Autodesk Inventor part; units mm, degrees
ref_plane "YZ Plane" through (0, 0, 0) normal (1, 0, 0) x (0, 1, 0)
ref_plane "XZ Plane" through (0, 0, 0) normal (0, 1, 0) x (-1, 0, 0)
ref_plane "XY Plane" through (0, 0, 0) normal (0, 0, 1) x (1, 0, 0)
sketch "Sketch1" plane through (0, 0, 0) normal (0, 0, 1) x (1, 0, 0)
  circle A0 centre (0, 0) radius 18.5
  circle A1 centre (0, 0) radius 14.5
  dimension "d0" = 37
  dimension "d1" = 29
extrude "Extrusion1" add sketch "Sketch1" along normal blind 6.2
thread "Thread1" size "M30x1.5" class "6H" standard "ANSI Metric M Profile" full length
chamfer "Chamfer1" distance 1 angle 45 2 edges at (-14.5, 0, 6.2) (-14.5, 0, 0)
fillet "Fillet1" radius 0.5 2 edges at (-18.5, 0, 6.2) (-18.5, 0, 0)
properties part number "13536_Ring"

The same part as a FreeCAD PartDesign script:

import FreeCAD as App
import Part
import Sketcher
from FreeCAD import Vector


def edges_at(feature, points):
    """Names of the edges that pass closest to the given points."""
    edges = feature.Shape.Edges
    near = lambda p: min(range(len(edges)), key=lambda i: edges[i].distToShape(Part.Vertex(*p))[0])
    return sorted({f"Edge{near(p) + 1}" for p in points})

doc = App.newDocument("Part")
body = doc.addObject("PartDesign::Body", "Body")

sketch1 = body.newObject("Sketcher::SketchObject", "Sketch")
sketch1.AttachmentSupport = (doc.getObject("XY_Plane"), [""])
sketch1.MapMode = "FlatFace"
sketch1.addGeometry([
    Part.Circle(Vector(0, 0, 0), Vector(0, 0, 1), 18.5),
    Part.Circle(Vector(0, 0, 0), Vector(0, 0, 1), 14.5),
], False)
sketch1.addConstraint([
    Sketcher.Constraint("Coincident", 0, 3, -1, 1),
    Sketcher.Constraint("Coincident", 1, 3, -1, 1),
    Sketcher.Constraint("Diameter", 0, 37.0),
    Sketcher.Constraint("Diameter", 1, 29.0),
])
pad1 = body.newObject("PartDesign::Pad", "Pad")
pad1.Profile = sketch1
pad1.Length = 6.2
doc.recompute()

chamfer = body.newObject("PartDesign::Chamfer", "Chamfer")
chamfer.Base = (pad1, edges_at(pad1, [(-14.5, 0, 6.2), (-14.5, 0, 0)]))
chamfer.Size = 1
doc.recompute()

fillet = body.newObject("PartDesign::Fillet", "Fillet")
fillet.Base = (chamfer, edges_at(chamfer, [(-18.5, 0, 6.2), (-18.5, 0, 0)]))
fillet.Radius = 0.5

doc.recompute()
